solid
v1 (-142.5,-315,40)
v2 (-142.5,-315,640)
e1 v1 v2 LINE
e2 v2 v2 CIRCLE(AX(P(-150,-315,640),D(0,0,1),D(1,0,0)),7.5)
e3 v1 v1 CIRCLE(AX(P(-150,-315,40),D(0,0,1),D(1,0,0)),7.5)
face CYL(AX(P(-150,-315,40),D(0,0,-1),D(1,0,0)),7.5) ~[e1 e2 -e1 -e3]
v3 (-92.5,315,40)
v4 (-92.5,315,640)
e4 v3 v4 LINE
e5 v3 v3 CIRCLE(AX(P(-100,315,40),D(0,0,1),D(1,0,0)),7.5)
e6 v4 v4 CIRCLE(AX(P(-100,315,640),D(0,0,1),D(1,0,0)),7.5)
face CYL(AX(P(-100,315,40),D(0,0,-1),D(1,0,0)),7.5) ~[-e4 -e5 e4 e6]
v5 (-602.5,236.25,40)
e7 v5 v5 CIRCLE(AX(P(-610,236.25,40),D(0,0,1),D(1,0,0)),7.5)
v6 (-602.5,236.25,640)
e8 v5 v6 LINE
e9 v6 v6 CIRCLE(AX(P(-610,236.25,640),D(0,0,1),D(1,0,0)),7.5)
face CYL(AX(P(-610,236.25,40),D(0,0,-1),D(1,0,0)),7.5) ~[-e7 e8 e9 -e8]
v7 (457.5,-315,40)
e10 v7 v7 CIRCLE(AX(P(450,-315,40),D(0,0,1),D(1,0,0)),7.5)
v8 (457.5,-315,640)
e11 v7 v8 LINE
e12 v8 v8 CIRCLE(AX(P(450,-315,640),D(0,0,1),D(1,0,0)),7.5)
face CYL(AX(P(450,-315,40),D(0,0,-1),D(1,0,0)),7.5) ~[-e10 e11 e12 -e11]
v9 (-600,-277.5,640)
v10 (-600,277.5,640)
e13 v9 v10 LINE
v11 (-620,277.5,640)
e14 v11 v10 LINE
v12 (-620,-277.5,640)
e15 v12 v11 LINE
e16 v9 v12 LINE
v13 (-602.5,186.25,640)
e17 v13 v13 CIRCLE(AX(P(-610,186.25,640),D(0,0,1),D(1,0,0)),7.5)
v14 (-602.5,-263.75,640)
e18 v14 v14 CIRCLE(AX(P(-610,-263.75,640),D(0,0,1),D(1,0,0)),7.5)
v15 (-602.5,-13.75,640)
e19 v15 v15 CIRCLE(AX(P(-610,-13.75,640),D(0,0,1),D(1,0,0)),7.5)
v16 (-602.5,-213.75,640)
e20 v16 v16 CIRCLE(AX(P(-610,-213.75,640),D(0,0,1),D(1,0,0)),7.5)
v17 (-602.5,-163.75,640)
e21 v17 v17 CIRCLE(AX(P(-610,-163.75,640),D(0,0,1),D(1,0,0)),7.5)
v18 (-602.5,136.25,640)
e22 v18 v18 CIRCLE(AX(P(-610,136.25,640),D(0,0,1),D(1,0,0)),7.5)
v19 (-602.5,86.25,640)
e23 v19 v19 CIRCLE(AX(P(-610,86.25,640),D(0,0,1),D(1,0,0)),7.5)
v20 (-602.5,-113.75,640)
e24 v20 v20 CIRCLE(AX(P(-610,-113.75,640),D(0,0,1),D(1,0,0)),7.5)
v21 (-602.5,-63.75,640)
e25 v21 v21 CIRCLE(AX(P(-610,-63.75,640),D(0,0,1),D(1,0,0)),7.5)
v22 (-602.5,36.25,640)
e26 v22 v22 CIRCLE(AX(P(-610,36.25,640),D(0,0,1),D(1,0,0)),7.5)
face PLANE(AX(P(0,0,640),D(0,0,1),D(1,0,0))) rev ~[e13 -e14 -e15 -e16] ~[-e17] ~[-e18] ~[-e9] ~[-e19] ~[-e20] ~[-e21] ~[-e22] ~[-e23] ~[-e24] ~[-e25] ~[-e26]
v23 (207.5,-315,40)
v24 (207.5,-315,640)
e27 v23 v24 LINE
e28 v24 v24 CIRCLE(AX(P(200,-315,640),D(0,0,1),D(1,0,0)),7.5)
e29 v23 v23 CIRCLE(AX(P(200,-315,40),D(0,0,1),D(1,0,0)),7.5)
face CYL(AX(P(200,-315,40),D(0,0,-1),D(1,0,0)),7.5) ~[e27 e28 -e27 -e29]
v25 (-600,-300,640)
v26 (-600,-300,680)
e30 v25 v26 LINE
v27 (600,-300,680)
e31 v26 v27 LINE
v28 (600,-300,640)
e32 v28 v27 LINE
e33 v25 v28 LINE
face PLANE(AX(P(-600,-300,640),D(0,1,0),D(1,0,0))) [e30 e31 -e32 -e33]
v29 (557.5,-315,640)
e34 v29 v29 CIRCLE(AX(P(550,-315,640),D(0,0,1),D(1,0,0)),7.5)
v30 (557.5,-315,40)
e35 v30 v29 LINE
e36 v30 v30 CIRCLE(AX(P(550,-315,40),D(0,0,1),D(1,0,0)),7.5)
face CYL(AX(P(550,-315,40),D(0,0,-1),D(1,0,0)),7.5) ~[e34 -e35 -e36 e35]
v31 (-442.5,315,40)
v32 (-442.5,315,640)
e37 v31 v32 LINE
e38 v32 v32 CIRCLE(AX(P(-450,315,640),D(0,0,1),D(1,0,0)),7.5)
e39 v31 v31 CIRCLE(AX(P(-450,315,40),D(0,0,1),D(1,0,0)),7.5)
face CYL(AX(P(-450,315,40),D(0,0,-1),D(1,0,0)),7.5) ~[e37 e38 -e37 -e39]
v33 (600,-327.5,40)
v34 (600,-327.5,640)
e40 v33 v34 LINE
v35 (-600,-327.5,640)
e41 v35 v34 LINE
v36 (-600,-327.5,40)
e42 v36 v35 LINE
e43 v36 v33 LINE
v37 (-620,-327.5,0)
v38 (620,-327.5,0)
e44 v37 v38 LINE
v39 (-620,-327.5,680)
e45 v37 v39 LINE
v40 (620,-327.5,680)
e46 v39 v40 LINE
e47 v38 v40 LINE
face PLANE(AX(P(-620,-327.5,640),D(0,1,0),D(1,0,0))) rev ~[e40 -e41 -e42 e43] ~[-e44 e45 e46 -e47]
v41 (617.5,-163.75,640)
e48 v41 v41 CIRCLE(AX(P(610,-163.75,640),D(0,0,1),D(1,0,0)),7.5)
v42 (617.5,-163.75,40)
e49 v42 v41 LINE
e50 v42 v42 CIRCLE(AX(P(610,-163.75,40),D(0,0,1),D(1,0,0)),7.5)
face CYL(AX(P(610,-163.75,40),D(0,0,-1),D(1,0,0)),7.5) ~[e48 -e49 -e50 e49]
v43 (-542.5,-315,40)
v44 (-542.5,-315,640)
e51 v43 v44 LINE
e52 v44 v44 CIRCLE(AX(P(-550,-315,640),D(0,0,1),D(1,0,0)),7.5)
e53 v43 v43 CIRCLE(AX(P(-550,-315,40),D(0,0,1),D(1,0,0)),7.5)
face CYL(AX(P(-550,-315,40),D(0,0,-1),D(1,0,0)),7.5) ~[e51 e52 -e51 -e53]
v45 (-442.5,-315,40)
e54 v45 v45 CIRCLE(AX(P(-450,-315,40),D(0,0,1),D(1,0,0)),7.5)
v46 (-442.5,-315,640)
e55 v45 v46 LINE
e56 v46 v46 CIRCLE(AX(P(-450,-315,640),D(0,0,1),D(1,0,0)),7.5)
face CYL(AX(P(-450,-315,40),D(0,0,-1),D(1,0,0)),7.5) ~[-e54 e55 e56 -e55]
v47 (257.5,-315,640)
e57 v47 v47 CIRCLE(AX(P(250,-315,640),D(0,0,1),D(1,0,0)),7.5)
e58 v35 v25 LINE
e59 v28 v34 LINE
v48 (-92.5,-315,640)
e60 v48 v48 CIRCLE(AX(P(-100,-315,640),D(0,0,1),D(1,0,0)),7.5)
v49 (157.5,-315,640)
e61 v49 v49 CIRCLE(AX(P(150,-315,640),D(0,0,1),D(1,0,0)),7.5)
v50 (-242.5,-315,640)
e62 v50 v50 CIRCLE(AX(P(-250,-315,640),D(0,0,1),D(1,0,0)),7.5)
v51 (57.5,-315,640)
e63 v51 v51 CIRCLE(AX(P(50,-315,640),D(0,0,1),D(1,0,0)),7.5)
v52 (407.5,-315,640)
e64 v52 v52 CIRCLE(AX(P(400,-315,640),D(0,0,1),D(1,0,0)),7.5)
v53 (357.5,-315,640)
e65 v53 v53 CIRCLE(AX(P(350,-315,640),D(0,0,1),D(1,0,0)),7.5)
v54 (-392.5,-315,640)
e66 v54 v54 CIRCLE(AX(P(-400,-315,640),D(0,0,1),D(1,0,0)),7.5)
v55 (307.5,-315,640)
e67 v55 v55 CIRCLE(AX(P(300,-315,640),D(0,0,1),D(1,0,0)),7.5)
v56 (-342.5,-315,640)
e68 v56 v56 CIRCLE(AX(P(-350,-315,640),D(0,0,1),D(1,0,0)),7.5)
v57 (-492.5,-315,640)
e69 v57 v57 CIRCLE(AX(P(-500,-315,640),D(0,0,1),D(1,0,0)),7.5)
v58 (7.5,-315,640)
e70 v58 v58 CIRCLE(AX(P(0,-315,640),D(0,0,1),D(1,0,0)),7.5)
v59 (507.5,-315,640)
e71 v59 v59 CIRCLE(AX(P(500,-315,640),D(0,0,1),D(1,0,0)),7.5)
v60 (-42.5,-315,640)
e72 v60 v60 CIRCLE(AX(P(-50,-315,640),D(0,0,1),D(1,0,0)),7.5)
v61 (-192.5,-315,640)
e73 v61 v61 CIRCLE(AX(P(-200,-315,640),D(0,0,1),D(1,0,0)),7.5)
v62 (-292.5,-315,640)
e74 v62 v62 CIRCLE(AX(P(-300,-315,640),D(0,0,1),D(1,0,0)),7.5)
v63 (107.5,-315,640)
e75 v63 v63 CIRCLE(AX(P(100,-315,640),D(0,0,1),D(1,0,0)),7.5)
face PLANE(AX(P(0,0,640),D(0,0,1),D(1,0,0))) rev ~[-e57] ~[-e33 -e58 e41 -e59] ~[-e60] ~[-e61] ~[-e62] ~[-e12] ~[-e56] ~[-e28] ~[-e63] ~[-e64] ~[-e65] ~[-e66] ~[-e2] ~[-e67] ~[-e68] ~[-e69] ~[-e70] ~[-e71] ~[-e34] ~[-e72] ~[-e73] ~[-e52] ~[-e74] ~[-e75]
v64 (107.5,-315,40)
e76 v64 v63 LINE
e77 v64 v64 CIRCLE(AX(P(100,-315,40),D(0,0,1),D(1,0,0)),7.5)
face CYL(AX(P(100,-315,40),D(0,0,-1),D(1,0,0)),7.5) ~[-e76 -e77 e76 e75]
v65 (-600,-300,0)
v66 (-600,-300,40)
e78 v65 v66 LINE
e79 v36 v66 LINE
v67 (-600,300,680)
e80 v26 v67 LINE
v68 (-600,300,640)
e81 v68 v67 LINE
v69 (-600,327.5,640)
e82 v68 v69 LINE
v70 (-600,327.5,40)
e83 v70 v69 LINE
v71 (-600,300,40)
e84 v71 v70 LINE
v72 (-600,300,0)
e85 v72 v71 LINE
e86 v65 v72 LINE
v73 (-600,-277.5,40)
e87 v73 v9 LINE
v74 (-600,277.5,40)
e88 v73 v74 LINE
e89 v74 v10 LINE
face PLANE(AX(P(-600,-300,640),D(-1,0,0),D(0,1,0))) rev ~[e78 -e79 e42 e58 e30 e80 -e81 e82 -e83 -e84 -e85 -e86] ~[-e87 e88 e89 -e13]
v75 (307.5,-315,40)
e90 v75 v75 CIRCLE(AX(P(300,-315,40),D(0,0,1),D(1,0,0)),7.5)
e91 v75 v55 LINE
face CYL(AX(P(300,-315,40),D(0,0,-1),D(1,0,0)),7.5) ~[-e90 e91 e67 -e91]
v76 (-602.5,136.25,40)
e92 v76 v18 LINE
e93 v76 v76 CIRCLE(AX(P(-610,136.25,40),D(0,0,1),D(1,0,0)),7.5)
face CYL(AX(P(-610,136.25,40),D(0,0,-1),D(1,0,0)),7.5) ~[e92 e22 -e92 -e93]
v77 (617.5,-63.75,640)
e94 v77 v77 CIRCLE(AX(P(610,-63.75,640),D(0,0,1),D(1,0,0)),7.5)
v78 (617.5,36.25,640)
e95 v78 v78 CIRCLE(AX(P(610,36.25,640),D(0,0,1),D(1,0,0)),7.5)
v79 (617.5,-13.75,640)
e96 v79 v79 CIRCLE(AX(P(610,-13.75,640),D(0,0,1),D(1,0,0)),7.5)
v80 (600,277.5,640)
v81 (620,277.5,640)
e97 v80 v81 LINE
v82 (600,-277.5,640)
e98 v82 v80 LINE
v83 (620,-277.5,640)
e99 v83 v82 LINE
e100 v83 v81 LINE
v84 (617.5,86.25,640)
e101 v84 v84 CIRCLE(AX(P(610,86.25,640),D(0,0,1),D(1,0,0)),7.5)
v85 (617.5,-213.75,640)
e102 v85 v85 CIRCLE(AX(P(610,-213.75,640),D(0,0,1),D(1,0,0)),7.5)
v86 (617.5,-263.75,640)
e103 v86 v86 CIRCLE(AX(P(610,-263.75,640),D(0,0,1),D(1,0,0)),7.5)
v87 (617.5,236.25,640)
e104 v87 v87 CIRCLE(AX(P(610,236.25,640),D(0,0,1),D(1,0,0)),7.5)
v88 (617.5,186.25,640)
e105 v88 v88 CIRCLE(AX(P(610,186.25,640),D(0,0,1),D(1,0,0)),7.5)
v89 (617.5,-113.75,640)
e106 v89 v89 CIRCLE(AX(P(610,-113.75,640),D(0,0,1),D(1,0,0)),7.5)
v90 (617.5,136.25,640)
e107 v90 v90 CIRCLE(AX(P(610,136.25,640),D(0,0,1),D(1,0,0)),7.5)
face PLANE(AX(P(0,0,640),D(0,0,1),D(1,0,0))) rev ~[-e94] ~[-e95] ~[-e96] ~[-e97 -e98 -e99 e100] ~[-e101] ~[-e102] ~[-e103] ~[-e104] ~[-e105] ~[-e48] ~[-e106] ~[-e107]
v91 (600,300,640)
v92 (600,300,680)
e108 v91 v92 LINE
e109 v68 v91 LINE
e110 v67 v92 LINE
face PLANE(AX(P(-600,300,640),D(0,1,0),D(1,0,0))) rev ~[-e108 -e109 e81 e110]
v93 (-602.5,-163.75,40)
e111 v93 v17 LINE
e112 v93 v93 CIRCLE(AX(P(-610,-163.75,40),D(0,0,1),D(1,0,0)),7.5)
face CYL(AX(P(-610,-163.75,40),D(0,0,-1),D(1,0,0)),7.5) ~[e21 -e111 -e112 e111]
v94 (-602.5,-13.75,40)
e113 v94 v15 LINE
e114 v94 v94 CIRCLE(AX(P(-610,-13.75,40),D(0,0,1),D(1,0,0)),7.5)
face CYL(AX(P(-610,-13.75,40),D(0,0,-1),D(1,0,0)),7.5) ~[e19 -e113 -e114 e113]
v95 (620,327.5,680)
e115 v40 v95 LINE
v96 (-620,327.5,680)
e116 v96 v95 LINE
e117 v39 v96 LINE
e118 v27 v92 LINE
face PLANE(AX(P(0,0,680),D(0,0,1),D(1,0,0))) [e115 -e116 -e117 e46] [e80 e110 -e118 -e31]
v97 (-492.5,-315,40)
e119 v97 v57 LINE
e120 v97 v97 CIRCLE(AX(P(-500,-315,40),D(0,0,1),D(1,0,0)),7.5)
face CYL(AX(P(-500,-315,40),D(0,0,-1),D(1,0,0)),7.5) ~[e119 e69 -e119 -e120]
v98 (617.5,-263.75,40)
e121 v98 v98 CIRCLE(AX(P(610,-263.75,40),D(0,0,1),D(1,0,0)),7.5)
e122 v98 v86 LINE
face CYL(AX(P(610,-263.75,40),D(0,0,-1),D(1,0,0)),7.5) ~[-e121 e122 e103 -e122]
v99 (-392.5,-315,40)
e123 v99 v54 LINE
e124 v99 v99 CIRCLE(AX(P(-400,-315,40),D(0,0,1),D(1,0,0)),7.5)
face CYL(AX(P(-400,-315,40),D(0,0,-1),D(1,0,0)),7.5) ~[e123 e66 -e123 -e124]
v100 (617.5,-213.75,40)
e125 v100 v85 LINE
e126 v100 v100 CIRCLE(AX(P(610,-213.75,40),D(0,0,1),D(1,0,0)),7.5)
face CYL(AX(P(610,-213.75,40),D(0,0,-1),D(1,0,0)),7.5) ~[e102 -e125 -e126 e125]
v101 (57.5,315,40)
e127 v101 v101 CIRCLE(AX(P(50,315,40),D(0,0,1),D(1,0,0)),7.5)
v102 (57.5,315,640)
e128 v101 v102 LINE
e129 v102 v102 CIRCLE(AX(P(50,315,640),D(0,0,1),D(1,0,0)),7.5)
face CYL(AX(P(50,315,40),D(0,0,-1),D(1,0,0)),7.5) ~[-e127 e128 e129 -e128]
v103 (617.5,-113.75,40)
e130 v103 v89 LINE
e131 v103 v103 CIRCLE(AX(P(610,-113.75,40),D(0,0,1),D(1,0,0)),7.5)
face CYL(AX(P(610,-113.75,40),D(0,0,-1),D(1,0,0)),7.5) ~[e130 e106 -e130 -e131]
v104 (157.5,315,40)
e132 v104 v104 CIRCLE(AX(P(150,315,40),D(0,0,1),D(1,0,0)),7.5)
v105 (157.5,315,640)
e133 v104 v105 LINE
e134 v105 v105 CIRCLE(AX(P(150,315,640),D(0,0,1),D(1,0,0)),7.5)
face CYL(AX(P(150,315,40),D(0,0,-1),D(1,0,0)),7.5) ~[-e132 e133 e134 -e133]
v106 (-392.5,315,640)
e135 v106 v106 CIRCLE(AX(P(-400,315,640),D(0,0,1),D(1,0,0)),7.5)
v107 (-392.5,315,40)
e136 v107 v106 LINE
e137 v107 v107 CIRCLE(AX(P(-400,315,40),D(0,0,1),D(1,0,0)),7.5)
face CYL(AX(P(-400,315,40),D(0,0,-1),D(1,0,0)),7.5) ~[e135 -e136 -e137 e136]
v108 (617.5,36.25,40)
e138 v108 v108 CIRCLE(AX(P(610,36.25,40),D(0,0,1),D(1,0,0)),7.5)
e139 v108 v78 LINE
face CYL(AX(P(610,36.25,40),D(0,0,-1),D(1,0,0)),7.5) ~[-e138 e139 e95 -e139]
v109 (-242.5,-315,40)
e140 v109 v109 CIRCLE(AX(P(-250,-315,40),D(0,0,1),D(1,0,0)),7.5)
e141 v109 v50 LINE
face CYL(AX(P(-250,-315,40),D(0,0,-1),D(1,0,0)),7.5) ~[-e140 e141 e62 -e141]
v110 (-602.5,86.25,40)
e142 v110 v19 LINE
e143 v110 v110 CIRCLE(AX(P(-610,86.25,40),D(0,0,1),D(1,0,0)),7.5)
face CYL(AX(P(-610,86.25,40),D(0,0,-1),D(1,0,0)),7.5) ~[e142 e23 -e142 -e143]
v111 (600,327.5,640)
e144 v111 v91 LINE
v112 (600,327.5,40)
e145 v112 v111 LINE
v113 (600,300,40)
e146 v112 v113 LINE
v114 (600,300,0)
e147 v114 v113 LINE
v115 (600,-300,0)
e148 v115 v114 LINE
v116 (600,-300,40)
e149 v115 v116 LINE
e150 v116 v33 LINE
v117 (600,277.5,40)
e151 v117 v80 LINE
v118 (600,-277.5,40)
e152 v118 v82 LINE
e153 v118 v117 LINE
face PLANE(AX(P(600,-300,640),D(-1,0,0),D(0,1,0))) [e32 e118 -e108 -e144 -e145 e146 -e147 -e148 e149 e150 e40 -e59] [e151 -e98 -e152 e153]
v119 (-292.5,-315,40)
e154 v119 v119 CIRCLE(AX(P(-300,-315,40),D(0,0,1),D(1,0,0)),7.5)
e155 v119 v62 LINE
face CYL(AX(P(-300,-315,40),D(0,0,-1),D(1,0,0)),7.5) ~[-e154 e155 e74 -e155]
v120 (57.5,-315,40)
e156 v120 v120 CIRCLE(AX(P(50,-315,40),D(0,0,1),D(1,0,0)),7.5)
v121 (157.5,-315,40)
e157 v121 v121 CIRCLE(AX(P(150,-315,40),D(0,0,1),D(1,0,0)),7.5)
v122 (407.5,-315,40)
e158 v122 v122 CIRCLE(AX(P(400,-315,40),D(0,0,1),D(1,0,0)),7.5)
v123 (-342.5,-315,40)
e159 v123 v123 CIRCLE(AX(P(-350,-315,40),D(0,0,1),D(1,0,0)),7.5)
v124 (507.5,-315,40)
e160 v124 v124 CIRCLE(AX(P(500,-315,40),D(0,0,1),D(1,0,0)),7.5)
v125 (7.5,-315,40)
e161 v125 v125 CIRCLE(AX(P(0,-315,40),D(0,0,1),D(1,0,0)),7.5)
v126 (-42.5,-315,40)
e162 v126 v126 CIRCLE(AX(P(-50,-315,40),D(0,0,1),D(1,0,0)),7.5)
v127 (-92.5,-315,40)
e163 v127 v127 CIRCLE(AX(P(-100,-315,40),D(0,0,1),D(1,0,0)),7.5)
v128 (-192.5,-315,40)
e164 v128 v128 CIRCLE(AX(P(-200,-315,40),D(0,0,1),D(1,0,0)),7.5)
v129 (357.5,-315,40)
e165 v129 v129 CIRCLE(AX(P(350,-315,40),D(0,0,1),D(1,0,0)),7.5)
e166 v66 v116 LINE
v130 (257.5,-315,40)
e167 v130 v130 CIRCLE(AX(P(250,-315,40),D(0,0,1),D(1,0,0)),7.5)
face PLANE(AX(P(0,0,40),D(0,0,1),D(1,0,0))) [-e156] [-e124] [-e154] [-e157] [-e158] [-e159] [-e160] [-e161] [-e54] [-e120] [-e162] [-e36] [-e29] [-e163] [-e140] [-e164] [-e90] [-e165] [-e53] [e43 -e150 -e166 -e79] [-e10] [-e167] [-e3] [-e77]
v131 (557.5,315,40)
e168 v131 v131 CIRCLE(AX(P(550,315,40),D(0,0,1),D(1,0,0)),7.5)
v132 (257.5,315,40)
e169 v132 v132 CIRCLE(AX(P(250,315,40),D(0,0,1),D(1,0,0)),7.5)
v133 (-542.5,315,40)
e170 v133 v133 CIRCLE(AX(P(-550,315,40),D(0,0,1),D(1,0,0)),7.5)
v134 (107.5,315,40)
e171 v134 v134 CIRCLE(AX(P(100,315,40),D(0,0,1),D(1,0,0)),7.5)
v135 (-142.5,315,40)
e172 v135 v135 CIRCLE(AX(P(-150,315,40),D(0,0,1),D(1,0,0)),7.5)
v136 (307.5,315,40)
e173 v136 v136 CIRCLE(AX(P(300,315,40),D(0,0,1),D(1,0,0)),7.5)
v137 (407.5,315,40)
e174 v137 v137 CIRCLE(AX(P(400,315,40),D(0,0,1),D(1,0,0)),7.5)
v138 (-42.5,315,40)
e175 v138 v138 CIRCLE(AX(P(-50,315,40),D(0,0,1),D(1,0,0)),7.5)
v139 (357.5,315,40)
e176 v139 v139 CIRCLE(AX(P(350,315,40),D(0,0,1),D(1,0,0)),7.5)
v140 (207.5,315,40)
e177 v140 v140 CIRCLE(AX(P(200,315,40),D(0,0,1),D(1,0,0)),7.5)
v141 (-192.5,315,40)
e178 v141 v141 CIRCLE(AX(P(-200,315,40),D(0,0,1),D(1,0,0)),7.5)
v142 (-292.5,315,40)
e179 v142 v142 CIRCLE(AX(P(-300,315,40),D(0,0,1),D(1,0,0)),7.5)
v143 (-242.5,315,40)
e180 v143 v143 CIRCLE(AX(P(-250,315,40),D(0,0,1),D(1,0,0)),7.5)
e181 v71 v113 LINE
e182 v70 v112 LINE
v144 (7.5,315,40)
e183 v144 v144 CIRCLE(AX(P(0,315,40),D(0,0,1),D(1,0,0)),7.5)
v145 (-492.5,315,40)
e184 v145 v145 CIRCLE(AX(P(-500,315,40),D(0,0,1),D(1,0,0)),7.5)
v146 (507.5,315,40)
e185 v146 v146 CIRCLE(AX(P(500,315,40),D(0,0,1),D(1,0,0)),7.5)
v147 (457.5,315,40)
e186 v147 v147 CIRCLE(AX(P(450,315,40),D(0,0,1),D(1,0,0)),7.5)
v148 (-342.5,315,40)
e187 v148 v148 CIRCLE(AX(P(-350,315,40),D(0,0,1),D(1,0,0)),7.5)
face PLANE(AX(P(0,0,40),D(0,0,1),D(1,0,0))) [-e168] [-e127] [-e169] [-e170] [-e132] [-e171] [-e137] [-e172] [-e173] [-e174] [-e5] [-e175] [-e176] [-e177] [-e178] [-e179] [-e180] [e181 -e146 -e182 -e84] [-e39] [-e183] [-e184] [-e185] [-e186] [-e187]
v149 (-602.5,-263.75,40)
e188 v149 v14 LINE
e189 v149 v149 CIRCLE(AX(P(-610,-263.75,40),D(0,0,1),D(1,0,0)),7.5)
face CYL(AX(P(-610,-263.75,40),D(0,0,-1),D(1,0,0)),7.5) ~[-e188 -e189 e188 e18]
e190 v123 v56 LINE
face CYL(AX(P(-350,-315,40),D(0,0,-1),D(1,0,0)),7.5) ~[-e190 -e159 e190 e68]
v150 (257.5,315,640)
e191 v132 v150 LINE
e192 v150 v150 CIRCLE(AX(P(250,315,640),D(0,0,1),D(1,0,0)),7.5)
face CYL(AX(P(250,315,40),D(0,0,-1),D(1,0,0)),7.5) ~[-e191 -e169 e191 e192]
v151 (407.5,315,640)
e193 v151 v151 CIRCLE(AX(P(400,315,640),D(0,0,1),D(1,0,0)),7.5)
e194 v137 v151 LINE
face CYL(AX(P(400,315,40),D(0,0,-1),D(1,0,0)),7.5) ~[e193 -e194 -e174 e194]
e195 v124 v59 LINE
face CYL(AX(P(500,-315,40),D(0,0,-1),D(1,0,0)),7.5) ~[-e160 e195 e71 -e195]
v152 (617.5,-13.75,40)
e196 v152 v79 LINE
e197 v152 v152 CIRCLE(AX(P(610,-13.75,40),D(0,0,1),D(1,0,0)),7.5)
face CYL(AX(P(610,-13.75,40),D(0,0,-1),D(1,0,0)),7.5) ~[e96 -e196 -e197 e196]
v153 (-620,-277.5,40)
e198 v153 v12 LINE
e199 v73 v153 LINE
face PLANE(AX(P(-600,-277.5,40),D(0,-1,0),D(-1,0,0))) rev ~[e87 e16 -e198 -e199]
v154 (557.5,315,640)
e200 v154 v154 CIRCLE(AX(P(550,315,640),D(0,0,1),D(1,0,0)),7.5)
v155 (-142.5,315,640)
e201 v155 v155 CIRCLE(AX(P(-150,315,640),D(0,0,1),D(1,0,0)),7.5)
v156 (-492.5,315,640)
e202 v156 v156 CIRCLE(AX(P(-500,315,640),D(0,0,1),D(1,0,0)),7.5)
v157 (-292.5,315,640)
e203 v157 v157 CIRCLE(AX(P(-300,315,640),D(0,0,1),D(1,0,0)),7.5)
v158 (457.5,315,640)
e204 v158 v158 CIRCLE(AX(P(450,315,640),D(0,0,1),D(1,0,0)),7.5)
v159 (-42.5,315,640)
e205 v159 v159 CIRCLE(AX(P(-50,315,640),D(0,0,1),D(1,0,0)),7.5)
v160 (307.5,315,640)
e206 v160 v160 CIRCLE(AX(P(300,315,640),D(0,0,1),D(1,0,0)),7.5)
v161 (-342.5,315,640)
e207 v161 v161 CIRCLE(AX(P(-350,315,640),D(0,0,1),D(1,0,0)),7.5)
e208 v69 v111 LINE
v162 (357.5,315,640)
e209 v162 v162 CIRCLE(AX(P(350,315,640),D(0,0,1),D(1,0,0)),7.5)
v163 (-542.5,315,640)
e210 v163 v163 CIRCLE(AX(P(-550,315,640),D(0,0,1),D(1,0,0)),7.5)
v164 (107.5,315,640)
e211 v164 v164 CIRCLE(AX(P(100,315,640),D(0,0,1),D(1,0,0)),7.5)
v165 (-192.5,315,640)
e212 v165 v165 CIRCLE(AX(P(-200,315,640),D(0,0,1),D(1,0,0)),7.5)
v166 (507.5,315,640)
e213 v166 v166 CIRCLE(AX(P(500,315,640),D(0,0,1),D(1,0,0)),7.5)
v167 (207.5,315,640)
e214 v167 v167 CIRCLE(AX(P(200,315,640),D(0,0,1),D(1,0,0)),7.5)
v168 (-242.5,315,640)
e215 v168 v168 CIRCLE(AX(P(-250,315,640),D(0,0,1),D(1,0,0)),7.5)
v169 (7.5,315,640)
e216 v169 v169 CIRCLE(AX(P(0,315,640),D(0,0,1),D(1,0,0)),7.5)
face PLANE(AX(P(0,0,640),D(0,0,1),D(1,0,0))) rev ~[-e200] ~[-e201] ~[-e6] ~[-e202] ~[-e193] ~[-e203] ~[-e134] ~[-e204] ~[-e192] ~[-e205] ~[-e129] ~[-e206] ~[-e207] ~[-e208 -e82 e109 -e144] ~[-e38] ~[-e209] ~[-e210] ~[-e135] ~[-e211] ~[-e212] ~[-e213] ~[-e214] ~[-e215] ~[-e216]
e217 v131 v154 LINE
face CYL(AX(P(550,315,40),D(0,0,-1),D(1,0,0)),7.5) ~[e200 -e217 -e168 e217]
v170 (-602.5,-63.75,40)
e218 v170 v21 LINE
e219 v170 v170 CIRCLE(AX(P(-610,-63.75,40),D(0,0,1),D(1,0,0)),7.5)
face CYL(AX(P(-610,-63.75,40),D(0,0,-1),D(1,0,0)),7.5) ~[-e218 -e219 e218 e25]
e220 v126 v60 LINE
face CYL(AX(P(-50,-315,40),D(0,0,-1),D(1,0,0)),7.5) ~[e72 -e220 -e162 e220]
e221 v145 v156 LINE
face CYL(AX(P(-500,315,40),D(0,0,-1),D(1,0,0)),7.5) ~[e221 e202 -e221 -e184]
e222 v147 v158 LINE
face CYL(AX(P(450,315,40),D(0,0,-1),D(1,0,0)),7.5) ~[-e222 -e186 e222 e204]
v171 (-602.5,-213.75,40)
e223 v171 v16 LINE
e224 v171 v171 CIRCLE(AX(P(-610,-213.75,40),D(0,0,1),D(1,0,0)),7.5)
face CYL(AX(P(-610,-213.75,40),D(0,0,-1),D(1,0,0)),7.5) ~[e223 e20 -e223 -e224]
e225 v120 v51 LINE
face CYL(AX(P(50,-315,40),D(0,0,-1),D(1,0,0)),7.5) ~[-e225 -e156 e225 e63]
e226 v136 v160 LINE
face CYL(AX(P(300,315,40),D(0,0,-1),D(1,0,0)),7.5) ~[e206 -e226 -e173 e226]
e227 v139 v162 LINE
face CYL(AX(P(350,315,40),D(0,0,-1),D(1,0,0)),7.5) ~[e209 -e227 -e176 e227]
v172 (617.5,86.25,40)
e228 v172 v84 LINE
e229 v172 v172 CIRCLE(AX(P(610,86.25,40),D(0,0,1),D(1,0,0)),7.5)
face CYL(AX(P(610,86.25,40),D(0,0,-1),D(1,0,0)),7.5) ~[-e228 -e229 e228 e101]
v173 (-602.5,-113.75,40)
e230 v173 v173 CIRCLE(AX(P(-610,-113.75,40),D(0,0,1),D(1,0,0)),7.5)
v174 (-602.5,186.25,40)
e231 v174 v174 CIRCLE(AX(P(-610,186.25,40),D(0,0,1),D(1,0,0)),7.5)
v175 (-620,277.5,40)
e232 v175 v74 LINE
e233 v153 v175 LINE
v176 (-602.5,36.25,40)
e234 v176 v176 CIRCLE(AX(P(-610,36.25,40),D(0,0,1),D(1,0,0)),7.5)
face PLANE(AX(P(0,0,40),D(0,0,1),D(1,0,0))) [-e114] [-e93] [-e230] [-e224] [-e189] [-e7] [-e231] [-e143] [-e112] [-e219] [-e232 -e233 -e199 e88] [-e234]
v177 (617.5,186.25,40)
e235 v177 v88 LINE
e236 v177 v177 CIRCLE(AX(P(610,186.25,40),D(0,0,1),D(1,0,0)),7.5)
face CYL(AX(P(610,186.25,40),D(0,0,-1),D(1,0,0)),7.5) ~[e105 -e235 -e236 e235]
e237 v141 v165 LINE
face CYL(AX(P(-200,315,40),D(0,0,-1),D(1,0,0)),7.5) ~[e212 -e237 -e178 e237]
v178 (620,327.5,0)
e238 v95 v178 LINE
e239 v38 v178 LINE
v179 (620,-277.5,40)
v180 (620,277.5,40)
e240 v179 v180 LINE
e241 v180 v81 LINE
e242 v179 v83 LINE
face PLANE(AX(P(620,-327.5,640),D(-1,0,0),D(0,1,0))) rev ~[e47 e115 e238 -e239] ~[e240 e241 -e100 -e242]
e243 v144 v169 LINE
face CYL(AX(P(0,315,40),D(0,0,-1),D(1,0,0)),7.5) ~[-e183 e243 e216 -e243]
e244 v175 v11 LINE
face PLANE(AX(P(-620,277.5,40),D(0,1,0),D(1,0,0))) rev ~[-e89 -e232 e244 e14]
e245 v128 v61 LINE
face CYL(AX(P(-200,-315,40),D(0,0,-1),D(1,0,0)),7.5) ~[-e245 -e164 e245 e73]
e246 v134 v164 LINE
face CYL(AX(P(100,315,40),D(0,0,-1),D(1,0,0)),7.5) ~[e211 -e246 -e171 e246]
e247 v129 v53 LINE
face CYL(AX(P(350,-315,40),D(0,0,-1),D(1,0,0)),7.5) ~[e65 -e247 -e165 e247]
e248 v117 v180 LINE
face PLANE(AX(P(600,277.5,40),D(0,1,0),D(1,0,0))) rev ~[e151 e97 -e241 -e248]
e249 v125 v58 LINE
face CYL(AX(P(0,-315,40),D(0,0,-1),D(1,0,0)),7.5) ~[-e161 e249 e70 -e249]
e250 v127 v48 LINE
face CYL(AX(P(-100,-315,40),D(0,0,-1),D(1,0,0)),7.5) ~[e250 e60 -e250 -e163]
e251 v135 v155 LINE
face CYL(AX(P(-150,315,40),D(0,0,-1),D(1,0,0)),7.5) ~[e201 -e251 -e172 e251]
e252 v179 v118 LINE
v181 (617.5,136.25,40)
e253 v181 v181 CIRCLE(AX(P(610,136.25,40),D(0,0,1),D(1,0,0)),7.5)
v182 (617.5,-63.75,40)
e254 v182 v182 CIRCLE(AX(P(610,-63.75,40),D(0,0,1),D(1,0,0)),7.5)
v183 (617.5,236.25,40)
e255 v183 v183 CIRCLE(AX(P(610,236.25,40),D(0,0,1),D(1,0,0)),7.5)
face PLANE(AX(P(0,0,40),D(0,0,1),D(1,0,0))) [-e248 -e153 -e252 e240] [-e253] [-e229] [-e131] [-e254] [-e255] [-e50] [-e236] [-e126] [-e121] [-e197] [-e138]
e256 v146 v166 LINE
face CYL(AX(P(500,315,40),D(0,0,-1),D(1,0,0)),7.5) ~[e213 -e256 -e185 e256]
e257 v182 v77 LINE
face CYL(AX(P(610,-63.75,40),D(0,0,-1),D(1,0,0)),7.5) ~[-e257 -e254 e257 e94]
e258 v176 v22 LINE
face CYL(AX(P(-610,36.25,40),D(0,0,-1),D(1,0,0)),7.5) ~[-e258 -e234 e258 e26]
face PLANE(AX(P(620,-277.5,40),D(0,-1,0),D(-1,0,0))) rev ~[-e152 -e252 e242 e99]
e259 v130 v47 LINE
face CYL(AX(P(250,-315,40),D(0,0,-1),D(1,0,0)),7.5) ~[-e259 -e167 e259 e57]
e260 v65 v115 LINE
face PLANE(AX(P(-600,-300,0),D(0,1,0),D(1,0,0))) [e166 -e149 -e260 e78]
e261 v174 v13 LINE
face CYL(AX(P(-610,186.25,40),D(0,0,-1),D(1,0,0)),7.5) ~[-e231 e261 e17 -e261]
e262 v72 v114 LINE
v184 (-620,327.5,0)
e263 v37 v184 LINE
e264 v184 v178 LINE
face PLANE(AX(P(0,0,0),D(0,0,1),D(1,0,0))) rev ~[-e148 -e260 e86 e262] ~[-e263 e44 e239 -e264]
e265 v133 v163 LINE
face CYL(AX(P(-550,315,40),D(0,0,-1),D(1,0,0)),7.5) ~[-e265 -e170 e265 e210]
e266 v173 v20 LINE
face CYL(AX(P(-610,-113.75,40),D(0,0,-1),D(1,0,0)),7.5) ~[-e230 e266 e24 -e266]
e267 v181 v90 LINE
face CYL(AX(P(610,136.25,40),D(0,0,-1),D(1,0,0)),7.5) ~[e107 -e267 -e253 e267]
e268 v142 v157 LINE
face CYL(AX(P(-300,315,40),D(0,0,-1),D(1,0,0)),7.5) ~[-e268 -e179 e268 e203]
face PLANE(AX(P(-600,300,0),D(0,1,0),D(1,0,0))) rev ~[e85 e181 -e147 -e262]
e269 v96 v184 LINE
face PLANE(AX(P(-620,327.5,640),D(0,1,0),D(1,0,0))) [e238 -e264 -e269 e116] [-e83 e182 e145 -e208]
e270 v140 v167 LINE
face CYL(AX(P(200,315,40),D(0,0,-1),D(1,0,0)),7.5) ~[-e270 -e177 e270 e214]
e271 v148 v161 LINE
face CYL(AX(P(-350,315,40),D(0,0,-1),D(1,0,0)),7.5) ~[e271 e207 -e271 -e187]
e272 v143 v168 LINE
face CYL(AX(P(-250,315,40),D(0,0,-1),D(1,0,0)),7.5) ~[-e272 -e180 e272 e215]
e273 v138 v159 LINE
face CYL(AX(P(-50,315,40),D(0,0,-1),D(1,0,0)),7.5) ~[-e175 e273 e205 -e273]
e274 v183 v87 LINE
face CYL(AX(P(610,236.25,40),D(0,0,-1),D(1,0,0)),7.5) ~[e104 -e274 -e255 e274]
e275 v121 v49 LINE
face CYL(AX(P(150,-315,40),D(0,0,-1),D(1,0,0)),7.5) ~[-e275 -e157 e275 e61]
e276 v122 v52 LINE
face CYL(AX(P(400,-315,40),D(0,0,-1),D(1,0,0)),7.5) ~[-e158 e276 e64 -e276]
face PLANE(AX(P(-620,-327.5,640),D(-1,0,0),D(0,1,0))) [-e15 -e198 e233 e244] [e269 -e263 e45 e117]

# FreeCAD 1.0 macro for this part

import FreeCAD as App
import Part
import Sketcher
Q = App.Units.Quantity


def add_polygon(sketch, points):
    """Adds a closed chain of lines whose ends are joined by coincident constraints."""
    first, n = sketch.GeometryCount, len(points)
    for a, b in zip(points, points[1:] + points[:1]):
        sketch.addGeometry(Part.LineSegment(App.Vector(*a, 0), App.Vector(*b, 0)), False)
    for i in range(n):
        sketch.addConstraint(Sketcher.Constraint("Coincident", first + i, 2, first + (i + 1) % n, 1))

doc = App.newDocument("Part")
params = doc.addObject("Spreadsheet::Sheet", "Params")
for row, (alias, value) in enumerate([
    ("sketch1_width", "1240 mm"),
    ("sketch1_width2", "1200 mm"),
    ("sketch1_height", "655 mm"),
    ("sketch1_height2", "600 mm"),
    ("pad1_length", "40 mm"),
    ("sketch2_width", "20 mm"),
    ("sketch2_height", "50 mm"),
    ("pad2_length", "600 mm"),
    ("sketch3_diameter", "15 mm"),
    ("pad3_length", "600 mm"),
    ("sketch4_width", "1240 mm"),
    ("sketch4_width2", "1200 mm"),
    ("sketch4_height", "655 mm"),
    ("sketch4_height2", "600 mm"),
    ("pad4_length", "40 mm"),
], start=1):
    params.set(f"A{row}", alias)
    params.set(f"B{row}", "=" + value)
    params.setAlias(f"B{row}", alias)

body = doc.addObject("PartDesign::Body", "Body")

sketch1 = body.newObject("Sketcher::SketchObject", "Sketch")
sketch1.AttachmentSupport = (doc.getObject("XY_Plane"), [""])
sketch1.MapMode = "FlatFace"
add_polygon(sketch1, [(-620, 328), (-620, -328), (620, -328), (620, 328)])
add_polygon(sketch1, [(600, -300), (-600, -300), (-600, 300), (600, 300)])
sketch1.addConstraint(Sketcher.Constraint("Vertical", 0))
sketch1.addConstraint(Sketcher.Constraint("Horizontal", 1))
sketch1.addConstraint(Sketcher.Constraint("Vertical", 2))
sketch1.addConstraint(Sketcher.Constraint("Horizontal", 3))
sketch1.addConstraint(Sketcher.Constraint("Horizontal", 4))
sketch1.addConstraint(Sketcher.Constraint("Vertical", 5))
sketch1.addConstraint(Sketcher.Constraint("Horizontal", 6))
sketch1.addConstraint(Sketcher.Constraint("Vertical", 7))
sketch1.addConstraint(Sketcher.Constraint("Symmetric", 0, 2, 2, 2, -1, 1))
sketch1.addConstraint(Sketcher.Constraint("Symmetric", 4, 2, 6, 2, -1, 1))
sketch1.addConstraint(Sketcher.Constraint("DistanceX", 1, 1, 1, 2, Q("1240 mm")))
sketch1.addConstraint(Sketcher.Constraint("DistanceX", 4, 2, 4, 1, Q("1200 mm")))
sketch1.addConstraint(Sketcher.Constraint("DistanceY", 0, 2, 0, 1, Q("655 mm")))
sketch1.addConstraint(Sketcher.Constraint("DistanceY", 5, 1, 5, 2, Q("600 mm")))
sketch1.setExpression("Constraints[18]", "Params.sketch1_width")
sketch1.setExpression("Constraints[19]", "Params.sketch1_width2")
sketch1.setExpression("Constraints[20]", "Params.sketch1_height")
sketch1.setExpression("Constraints[21]", "Params.sketch1_height2")
pad1 = body.newObject("PartDesign::Pad", "Pad")
pad1.Profile = sketch1
pad1.setExpression("Length", "Params.pad1_length")

sketch2 = body.newObject("Sketcher::SketchObject", "Sketch001")
sketch2.AttachmentSupport = (doc.getObject("XY_Plane"), [""])
sketch2.MapMode = "FlatFace"
sketch2.AttachmentOffset = App.Placement(App.Vector(0, 0, 40), App.Rotation())
add_polygon(sketch2, [(-600, 328), (-620, 328), (-620, 278), (-600, 278)])
add_polygon(sketch2, [(-600, -278), (-620, -278), (-620, -328), (-600, -328)])
add_polygon(sketch2, [(620, 328), (600, 328), (600, 278), (620, 278)])
add_polygon(sketch2, [(620, -278), (600, -278), (600, -328), (620, -328)])
sketch2.addConstraint(Sketcher.Constraint("Horizontal", 0))
sketch2.addConstraint(Sketcher.Constraint("Vertical", 1))
sketch2.addConstraint(Sketcher.Constraint("Horizontal", 2))
sketch2.addConstraint(Sketcher.Constraint("Vertical", 3))
sketch2.addConstraint(Sketcher.Constraint("Horizontal", 4))
sketch2.addConstraint(Sketcher.Constraint("Vertical", 5))
sketch2.addConstraint(Sketcher.Constraint("Horizontal", 6))
sketch2.addConstraint(Sketcher.Constraint("Vertical", 7))
sketch2.addConstraint(Sketcher.Constraint("Horizontal", 8))
sketch2.addConstraint(Sketcher.Constraint("Vertical", 9))
sketch2.addConstraint(Sketcher.Constraint("Horizontal", 10))
sketch2.addConstraint(Sketcher.Constraint("Vertical", 11))
sketch2.addConstraint(Sketcher.Constraint("Horizontal", 12))
sketch2.addConstraint(Sketcher.Constraint("Vertical", 13))
sketch2.addConstraint(Sketcher.Constraint("Horizontal", 14))
sketch2.addConstraint(Sketcher.Constraint("Vertical", 15))
sketch2.addConstraint(Sketcher.Constraint("Symmetric", 6, 2, 8, 2, -1, 1))
sketch2.addConstraint(Sketcher.Constraint("Symmetric", 4, 2, 10, 2, -1, 1))
sketch2.addConstraint(Sketcher.Constraint("Symmetric", 2, 2, 12, 2, -1, 1))
sketch2.addConstraint(Sketcher.Constraint("Symmetric", 0, 2, 14, 2, -1, 1))
sketch2.addConstraint(Sketcher.Constraint("Symmetric", 3, 2, 8, 2, -2))
sketch2.addConstraint(Sketcher.Constraint("Symmetric", 1, 2, 10, 2, -2))
sketch2.addConstraint(Sketcher.Constraint("DistanceX", 0, 2, 0, 1, Q("20 mm")))
sketch2.addConstraint(Sketcher.Constraint("DistanceY", 1, 2, 1, 1, Q("50 mm")))
sketch2.addConstraint(Sketcher.Constraint("DistanceX", 0, 2, -1, 1, Q("620 mm")))
sketch2.addConstraint(Sketcher.Constraint("DistanceY", 4, 2, 1, 2, Q("555 mm")))
sketch2.setExpression("Constraints[38]", "Params.sketch2_width")
sketch2.setExpression("Constraints[39]", "Params.sketch2_height")
pad2 = body.newObject("PartDesign::Pad", "Pad001")
pad2.Profile = sketch2
pad2.setExpression("Length", "Params.pad2_length")

sketch3 = body.newObject("Sketcher::SketchObject", "Sketch002")
sketch3.AttachmentSupport = (doc.getObject("XY_Plane"), [""])
sketch3.MapMode = "FlatFace"
sketch3.AttachmentOffset = App.Placement(App.Vector(0, 0, 40), App.Rotation())
sketch3.addGeometry(Part.Circle(App.Vector(-550, -315, 0), App.Vector(0, 0, 1), 8), False)
sketch3.addGeometry(Part.Circle(App.Vector(-500, -315, 0), App.Vector(0, 0, 1), 8), False)
sketch3.addGeometry(Part.Circle(App.Vector(-450, -315, 0), App.Vector(0, 0, 1), 8), False)
sketch3.addGeometry(Part.Circle(App.Vector(-400, -315, 0), App.Vector(0, 0, 1), 8), False)
sketch3.addGeometry(Part.Circle(App.Vector(-350, -315, 0), App.Vector(0, 0, 1), 8), False)
sketch3.addGeometry(Part.Circle(App.Vector(-300, -315, 0), App.Vector(0, 0, 1), 8), False)
sketch3.addGeometry(Part.Circle(App.Vector(-250, -315, 0), App.Vector(0, 0, 1), 8), False)
sketch3.addGeometry(Part.Circle(App.Vector(-200, -315, 0), App.Vector(0, 0, 1), 8), False)
sketch3.addGeometry(Part.Circle(App.Vector(-150, -315, 0), App.Vector(0, 0, 1), 8), False)
sketch3.addGeometry(Part.Circle(App.Vector(-100, -315, 0), App.Vector(0, 0, 1), 8), False)
sketch3.addGeometry(Part.Circle(App.Vector(-50, -315, 0), App.Vector(0, 0, 1), 8), False)
sketch3.addGeometry(Part.Circle(App.Vector(0, -315, 0), App.Vector(0, 0, 1), 8), False)
sketch3.addGeometry(Part.Circle(App.Vector(50, -315, 0), App.Vector(0, 0, 1), 8), False)
sketch3.addGeometry(Part.Circle(App.Vector(100, -315, 0), App.Vector(0, 0, 1), 8), False)
sketch3.addGeometry(Part.Circle(App.Vector(150, -315, 0), App.Vector(0, 0, 1), 8), False)
sketch3.addGeometry(Part.Circle(App.Vector(200, -315, 0), App.Vector(0, 0, 1), 8), False)
sketch3.addGeometry(Part.Circle(App.Vector(250, -315, 0), App.Vector(0, 0, 1), 8), False)
sketch3.addGeometry(Part.Circle(App.Vector(300, -315, 0), App.Vector(0, 0, 1), 8), False)
sketch3.addGeometry(Part.Circle(App.Vector(350, -315, 0), App.Vector(0, 0, 1), 8), False)
sketch3.addGeometry(Part.Circle(App.Vector(400, -315, 0), App.Vector(0, 0, 1), 8), False)
sketch3.addGeometry(Part.Circle(App.Vector(450, -315, 0), App.Vector(0, 0, 1), 8), False)
sketch3.addGeometry(Part.Circle(App.Vector(500, -315, 0), App.Vector(0, 0, 1), 8), False)
sketch3.addGeometry(Part.Circle(App.Vector(550, -315, 0), App.Vector(0, 0, 1), 8), False)
sketch3.addGeometry(Part.Circle(App.Vector(-500, 315, 0), App.Vector(0, 0, 1), 8), False)
sketch3.addGeometry(Part.Circle(App.Vector(-550, 315, 0), App.Vector(0, 0, 1), 8), False)
sketch3.addGeometry(Part.Circle(App.Vector(150, 315, 0), App.Vector(0, 0, 1), 8), False)
sketch3.addGeometry(Part.Circle(App.Vector(0, 315, 0), App.Vector(0, 0, 1), 8), False)
sketch3.addGeometry(Part.Circle(App.Vector(250, 315, 0), App.Vector(0, 0, 1), 8), False)
sketch3.addGeometry(Part.Circle(App.Vector(-400, 315, 0), App.Vector(0, 0, 1), 8), False)
sketch3.addGeometry(Part.Circle(App.Vector(450, 315, 0), App.Vector(0, 0, 1), 8), False)
sketch3.addGeometry(Part.Circle(App.Vector(100, 315, 0), App.Vector(0, 0, 1), 8), False)
sketch3.addGeometry(Part.Circle(App.Vector(500, 315, 0), App.Vector(0, 0, 1), 8), False)
sketch3.addGeometry(Part.Circle(App.Vector(-100, 315, 0), App.Vector(0, 0, 1), 8), False)
sketch3.addGeometry(Part.Circle(App.Vector(-450, 315, 0), App.Vector(0, 0, 1), 8), False)
sketch3.addGeometry(Part.Circle(App.Vector(400, 315, 0), App.Vector(0, 0, 1), 8), False)
sketch3.addGeometry(Part.Circle(App.Vector(50, 315, 0), App.Vector(0, 0, 1), 8), False)
sketch3.addGeometry(Part.Circle(App.Vector(-300, 315, 0), App.Vector(0, 0, 1), 8), False)
sketch3.addGeometry(Part.Circle(App.Vector(-50, 315, 0), App.Vector(0, 0, 1), 8), False)
sketch3.addGeometry(Part.Circle(App.Vector(550, 315, 0), App.Vector(0, 0, 1), 8), False)
sketch3.addGeometry(Part.Circle(App.Vector(300, 315, 0), App.Vector(0, 0, 1), 8), False)
sketch3.addGeometry(Part.Circle(App.Vector(-200, 315, 0), App.Vector(0, 0, 1), 8), False)
sketch3.addGeometry(Part.Circle(App.Vector(200, 315, 0), App.Vector(0, 0, 1), 8), False)
sketch3.addGeometry(Part.Circle(App.Vector(350, 315, 0), App.Vector(0, 0, 1), 8), False)
sketch3.addGeometry(Part.Circle(App.Vector(-250, 315, 0), App.Vector(0, 0, 1), 8), False)
sketch3.addGeometry(Part.Circle(App.Vector(-150, 315, 0), App.Vector(0, 0, 1), 8), False)
sketch3.addGeometry(Part.Circle(App.Vector(-350, 315, 0), App.Vector(0, 0, 1), 8), False)
sketch3.addGeometry(Part.Circle(App.Vector(-610, -264, 0), App.Vector(0, 0, 1), 8), False)
sketch3.addGeometry(Part.Circle(App.Vector(-610, -214, 0), App.Vector(0, 0, 1), 8), False)
sketch3.addGeometry(Part.Circle(App.Vector(-610, -164, 0), App.Vector(0, 0, 1), 8), False)
sketch3.addGeometry(Part.Circle(App.Vector(-610, -114, 0), App.Vector(0, 0, 1), 8), False)
sketch3.addGeometry(Part.Circle(App.Vector(-610, -64, 0), App.Vector(0, 0, 1), 8), False)
sketch3.addGeometry(Part.Circle(App.Vector(-610, -14, 0), App.Vector(0, 0, 1), 8), False)
sketch3.addGeometry(Part.Circle(App.Vector(-610, 36, 0), App.Vector(0, 0, 1), 8), False)
sketch3.addGeometry(Part.Circle(App.Vector(-610, 86, 0), App.Vector(0, 0, 1), 8), False)
sketch3.addGeometry(Part.Circle(App.Vector(-610, 136, 0), App.Vector(0, 0, 1), 8), False)
sketch3.addGeometry(Part.Circle(App.Vector(-610, 186, 0), App.Vector(0, 0, 1), 8), False)
sketch3.addGeometry(Part.Circle(App.Vector(-610, 236, 0), App.Vector(0, 0, 1), 8), False)
sketch3.addGeometry(Part.Circle(App.Vector(610, -264, 0), App.Vector(0, 0, 1), 8), False)
sketch3.addGeometry(Part.Circle(App.Vector(610, -214, 0), App.Vector(0, 0, 1), 8), False)
sketch3.addGeometry(Part.Circle(App.Vector(610, 136, 0), App.Vector(0, 0, 1), 8), False)
sketch3.addGeometry(Part.Circle(App.Vector(610, 236, 0), App.Vector(0, 0, 1), 8), False)
sketch3.addGeometry(Part.Circle(App.Vector(610, -114, 0), App.Vector(0, 0, 1), 8), False)
sketch3.addGeometry(Part.Circle(App.Vector(610, 86, 0), App.Vector(0, 0, 1), 8), False)
sketch3.addGeometry(Part.Circle(App.Vector(610, 186, 0), App.Vector(0, 0, 1), 8), False)
sketch3.addGeometry(Part.Circle(App.Vector(610, 36, 0), App.Vector(0, 0, 1), 8), False)
sketch3.addGeometry(Part.Circle(App.Vector(610, -14, 0), App.Vector(0, 0, 1), 8), False)
sketch3.addGeometry(Part.Circle(App.Vector(610, -64, 0), App.Vector(0, 0, 1), 8), False)
sketch3.addGeometry(Part.Circle(App.Vector(610, -164, 0), App.Vector(0, 0, 1), 8), False)
sketch3.addConstraint(Sketcher.Constraint("Equal", 0, 1))
sketch3.addConstraint(Sketcher.Constraint("Equal", 1, 2))
sketch3.addConstraint(Sketcher.Constraint("Equal", 2, 3))
sketch3.addConstraint(Sketcher.Constraint("Equal", 3, 4))
sketch3.addConstraint(Sketcher.Constraint("Equal", 4, 5))
sketch3.addConstraint(Sketcher.Constraint("Equal", 5, 6))
sketch3.addConstraint(Sketcher.Constraint("Equal", 6, 7))
sketch3.addConstraint(Sketcher.Constraint("Equal", 7, 8))
sketch3.addConstraint(Sketcher.Constraint("Equal", 8, 9))
sketch3.addConstraint(Sketcher.Constraint("Equal", 9, 10))
sketch3.addConstraint(Sketcher.Constraint("Equal", 10, 11))
sketch3.addConstraint(Sketcher.Constraint("Equal", 11, 12))
sketch3.addConstraint(Sketcher.Constraint("Equal", 12, 13))
sketch3.addConstraint(Sketcher.Constraint("Equal", 13, 14))
sketch3.addConstraint(Sketcher.Constraint("Equal", 14, 15))
sketch3.addConstraint(Sketcher.Constraint("Equal", 15, 16))
sketch3.addConstraint(Sketcher.Constraint("Equal", 16, 17))
sketch3.addConstraint(Sketcher.Constraint("Equal", 17, 18))
sketch3.addConstraint(Sketcher.Constraint("Equal", 18, 19))
sketch3.addConstraint(Sketcher.Constraint("Equal", 19, 20))
sketch3.addConstraint(Sketcher.Constraint("Equal", 20, 21))
sketch3.addConstraint(Sketcher.Constraint("Equal", 21, 22))
sketch3.addConstraint(Sketcher.Constraint("Equal", 22, 23))
sketch3.addConstraint(Sketcher.Constraint("Equal", 23, 24))
sketch3.addConstraint(Sketcher.Constraint("Equal", 24, 25))
sketch3.addConstraint(Sketcher.Constraint("Equal", 25, 26))
sketch3.addConstraint(Sketcher.Constraint("Equal", 26, 27))
sketch3.addConstraint(Sketcher.Constraint("Equal", 27, 28))
sketch3.addConstraint(Sketcher.Constraint("Equal", 28, 29))
sketch3.addConstraint(Sketcher.Constraint("Equal", 29, 30))
sketch3.addConstraint(Sketcher.Constraint("Equal", 30, 31))
sketch3.addConstraint(Sketcher.Constraint("Equal", 31, 32))
sketch3.addConstraint(Sketcher.Constraint("Equal", 32, 33))
sketch3.addConstraint(Sketcher.Constraint("Equal", 33, 34))
sketch3.addConstraint(Sketcher.Constraint("Equal", 34, 35))
sketch3.addConstraint(Sketcher.Constraint("Equal", 35, 36))
sketch3.addConstraint(Sketcher.Constraint("Equal", 36, 37))
sketch3.addConstraint(Sketcher.Constraint("Equal", 37, 38))
sketch3.addConstraint(Sketcher.Constraint("Equal", 38, 39))
sketch3.addConstraint(Sketcher.Constraint("Equal", 39, 40))
sketch3.addConstraint(Sketcher.Constraint("Equal", 40, 41))
sketch3.addConstraint(Sketcher.Constraint("Equal", 41, 42))
sketch3.addConstraint(Sketcher.Constraint("Equal", 42, 43))
sketch3.addConstraint(Sketcher.Constraint("Equal", 43, 44))
sketch3.addConstraint(Sketcher.Constraint("Equal", 44, 45))
sketch3.addConstraint(Sketcher.Constraint("Equal", 45, 46))
sketch3.addConstraint(Sketcher.Constraint("Equal", 46, 47))
sketch3.addConstraint(Sketcher.Constraint("Equal", 47, 48))
sketch3.addConstraint(Sketcher.Constraint("Equal", 48, 49))
sketch3.addConstraint(Sketcher.Constraint("Equal", 49, 50))
sketch3.addConstraint(Sketcher.Constraint("Equal", 50, 51))
sketch3.addConstraint(Sketcher.Constraint("Equal", 51, 52))
sketch3.addConstraint(Sketcher.Constraint("Equal", 52, 53))
sketch3.addConstraint(Sketcher.Constraint("Equal", 53, 54))
sketch3.addConstraint(Sketcher.Constraint("Equal", 54, 55))
sketch3.addConstraint(Sketcher.Constraint("Equal", 55, 56))
sketch3.addConstraint(Sketcher.Constraint("Equal", 56, 57))
sketch3.addConstraint(Sketcher.Constraint("Equal", 57, 58))
sketch3.addConstraint(Sketcher.Constraint("Equal", 58, 59))
sketch3.addConstraint(Sketcher.Constraint("Equal", 59, 60))
sketch3.addConstraint(Sketcher.Constraint("Equal", 60, 61))
sketch3.addConstraint(Sketcher.Constraint("Equal", 61, 62))
sketch3.addConstraint(Sketcher.Constraint("Equal", 62, 63))
sketch3.addConstraint(Sketcher.Constraint("Equal", 63, 64))
sketch3.addConstraint(Sketcher.Constraint("Equal", 64, 65))
sketch3.addConstraint(Sketcher.Constraint("Equal", 65, 66))
sketch3.addConstraint(Sketcher.Constraint("Equal", 66, 67))
sketch3.addConstraint(Sketcher.Constraint("Symmetric", 21, 3, 23, 3, -1, 1))
sketch3.addConstraint(Sketcher.Constraint("Symmetric", 22, 3, 24, 3, -1, 1))
sketch3.addConstraint(Sketcher.Constraint("Symmetric", 8, 3, 25, 3, -1, 1))
sketch3.addConstraint(Sketcher.Constraint("Symmetric", 11, 3, 26, 3, -1, 1))
sketch3.addConstraint(Sketcher.Constraint("Symmetric", 6, 3, 27, 3, -1, 1))
sketch3.addConstraint(Sketcher.Constraint("Symmetric", 19, 3, 28, 3, -1, 1))
sketch3.addConstraint(Sketcher.Constraint("Symmetric", 2, 3, 29, 3, -1, 1))
sketch3.addConstraint(Sketcher.Constraint("Symmetric", 9, 3, 30, 3, -1, 1))
sketch3.addConstraint(Sketcher.Constraint("Symmetric", 1, 3, 31, 3, -1, 1))
sketch3.addConstraint(Sketcher.Constraint("Symmetric", 13, 3, 32, 3, -1, 1))
sketch3.addConstraint(Sketcher.Constraint("Symmetric", 20, 3, 33, 3, -1, 1))
sketch3.addConstraint(Sketcher.Constraint("Symmetric", 3, 3, 34, 3, -1, 1))
sketch3.addConstraint(Sketcher.Constraint("Symmetric", 10, 3, 35, 3, -1, 1))
sketch3.addConstraint(Sketcher.Constraint("Symmetric", 17, 3, 36, 3, -1, 1))
sketch3.addConstraint(Sketcher.Constraint("Symmetric", 12, 3, 37, 3, -1, 1))
sketch3.addConstraint(Sketcher.Constraint("Symmetric", 0, 3, 38, 3, -1, 1))
sketch3.addConstraint(Sketcher.Constraint("Symmetric", 5, 3, 39, 3, -1, 1))
sketch3.addConstraint(Sketcher.Constraint("Symmetric", 15, 3, 40, 3, -1, 1))
sketch3.addConstraint(Sketcher.Constraint("Symmetric", 7, 3, 41, 3, -1, 1))
sketch3.addConstraint(Sketcher.Constraint("Symmetric", 4, 3, 42, 3, -1, 1))
sketch3.addConstraint(Sketcher.Constraint("Symmetric", 16, 3, 43, 3, -1, 1))
sketch3.addConstraint(Sketcher.Constraint("Symmetric", 14, 3, 44, 3, -1, 1))
sketch3.addConstraint(Sketcher.Constraint("Symmetric", 18, 3, 45, 3, -1, 1))
sketch3.addConstraint(Sketcher.Constraint("Symmetric", 10, 3, 12, 3, -2))
sketch3.addConstraint(Sketcher.Constraint("Symmetric", 9, 3, 13, 3, -2))
sketch3.addConstraint(Sketcher.Constraint("Symmetric", 8, 3, 14, 3, -2))
sketch3.addConstraint(Sketcher.Constraint("Symmetric", 7, 3, 15, 3, -2))
sketch3.addConstraint(Sketcher.Constraint("Symmetric", 6, 3, 16, 3, -2))
sketch3.addConstraint(Sketcher.Constraint("Symmetric", 5, 3, 17, 3, -2))
sketch3.addConstraint(Sketcher.Constraint("Symmetric", 4, 3, 18, 3, -2))
sketch3.addConstraint(Sketcher.Constraint("Symmetric", 3, 3, 19, 3, -2))
sketch3.addConstraint(Sketcher.Constraint("Symmetric", 2, 3, 20, 3, -2))
sketch3.addConstraint(Sketcher.Constraint("Symmetric", 1, 3, 21, 3, -2))
sketch3.addConstraint(Sketcher.Constraint("Symmetric", 0, 3, 22, 3, -2))
sketch3.addConstraint(Sketcher.Constraint("Symmetric", 46, 3, 57, 3, -2))
sketch3.addConstraint(Sketcher.Constraint("Symmetric", 47, 3, 58, 3, -2))
sketch3.addConstraint(Sketcher.Constraint("Symmetric", 54, 3, 59, 3, -2))
sketch3.addConstraint(Sketcher.Constraint("Symmetric", 56, 3, 60, 3, -2))
sketch3.addConstraint(Sketcher.Constraint("Symmetric", 49, 3, 61, 3, -2))
sketch3.addConstraint(Sketcher.Constraint("Symmetric", 53, 3, 62, 3, -2))
sketch3.addConstraint(Sketcher.Constraint("Symmetric", 55, 3, 63, 3, -2))
sketch3.addConstraint(Sketcher.Constraint("Symmetric", 52, 3, 64, 3, -2))
sketch3.addConstraint(Sketcher.Constraint("Symmetric", 51, 3, 65, 3, -2))
sketch3.addConstraint(Sketcher.Constraint("Symmetric", 50, 3, 66, 3, -2))
sketch3.addConstraint(Sketcher.Constraint("Symmetric", 48, 3, 67, 3, -2))
sketch3.addConstraint(Sketcher.Constraint("PointOnObject", 11, 3, -2))
sketch3.addConstraint(Sketcher.Constraint("Horizontal", 0, 3, 1, 3))
sketch3.addConstraint(Sketcher.Constraint("Horizontal", 1, 3, 2, 3))
sketch3.addConstraint(Sketcher.Constraint("Horizontal", 2, 3, 3, 3))
sketch3.addConstraint(Sketcher.Constraint("Horizontal", 3, 3, 4, 3))
sketch3.addConstraint(Sketcher.Constraint("Horizontal", 4, 3, 5, 3))
sketch3.addConstraint(Sketcher.Constraint("Horizontal", 5, 3, 6, 3))
sketch3.addConstraint(Sketcher.Constraint("Horizontal", 6, 3, 7, 3))
sketch3.addConstraint(Sketcher.Constraint("Horizontal", 7, 3, 8, 3))
sketch3.addConstraint(Sketcher.Constraint("Horizontal", 8, 3, 9, 3))
sketch3.addConstraint(Sketcher.Constraint("Horizontal", 9, 3, 10, 3))
sketch3.addConstraint(Sketcher.Constraint("Horizontal", 10, 3, 11, 3))
sketch3.addConstraint(Sketcher.Constraint("Vertical", 46, 3, 47, 3))
sketch3.addConstraint(Sketcher.Constraint("Vertical", 47, 3, 48, 3))
sketch3.addConstraint(Sketcher.Constraint("Vertical", 48, 3, 49, 3))
sketch3.addConstraint(Sketcher.Constraint("Vertical", 49, 3, 50, 3))
sketch3.addConstraint(Sketcher.Constraint("Vertical", 50, 3, 51, 3))
sketch3.addConstraint(Sketcher.Constraint("Vertical", 51, 3, 52, 3))
sketch3.addConstraint(Sketcher.Constraint("Vertical", 52, 3, 53, 3))
sketch3.addConstraint(Sketcher.Constraint("Vertical", 53, 3, 54, 3))
sketch3.addConstraint(Sketcher.Constraint("Vertical", 54, 3, 55, 3))
sketch3.addConstraint(Sketcher.Constraint("Vertical", 55, 3, 56, 3))
sketch3.addConstraint(Sketcher.Constraint("Diameter", 0, Q("15 mm")))
sketch3.addConstraint(Sketcher.Constraint("DistanceX", 0, 3, -1, 1, Q("550 mm")))
sketch3.addConstraint(Sketcher.Constraint("DistanceY", 0, 3, -1, 1, Q("315 mm")))
sketch3.addConstraint(Sketcher.Constraint("DistanceX", 1, 3, -1, 1, Q("500 mm")))
sketch3.addConstraint(Sketcher.Constraint("DistanceX", 2, 3, -1, 1, Q("450 mm")))
sketch3.addConstraint(Sketcher.Constraint("DistanceX", 3, 3, -1, 1, Q("400 mm")))
sketch3.addConstraint(Sketcher.Constraint("DistanceX", 4, 3, -1, 1, Q("350 mm")))
sketch3.addConstraint(Sketcher.Constraint("DistanceX", 5, 3, -1, 1, Q("300 mm")))
sketch3.addConstraint(Sketcher.Constraint("DistanceX", 6, 3, -1, 1, Q("250 mm")))
sketch3.addConstraint(Sketcher.Constraint("DistanceX", 7, 3, -1, 1, Q("200 mm")))
sketch3.addConstraint(Sketcher.Constraint("DistanceX", 8, 3, -1, 1, Q("150 mm")))
sketch3.addConstraint(Sketcher.Constraint("DistanceX", 9, 3, -1, 1, Q("100 mm")))
sketch3.addConstraint(Sketcher.Constraint("DistanceX", 10, 3, -1, 1, Q("50 mm")))
sketch3.addConstraint(Sketcher.Constraint("DistanceX", 46, 3, -1, 1, Q("610 mm")))
sketch3.addConstraint(Sketcher.Constraint("DistanceY", 46, 3, -1, 1, Q("263.75 mm")))
sketch3.addConstraint(Sketcher.Constraint("DistanceY", 47, 3, -1, 1, Q("213.75 mm")))
sketch3.addConstraint(Sketcher.Constraint("DistanceY", 48, 3, -1, 1, Q("163.75 mm")))
sketch3.addConstraint(Sketcher.Constraint("DistanceY", 49, 3, -1, 1, Q("113.75 mm")))
sketch3.addConstraint(Sketcher.Constraint("DistanceY", 50, 3, -1, 1, Q("63.75 mm")))
sketch3.addConstraint(Sketcher.Constraint("DistanceY", 51, 3, -1, 1, Q("13.75 mm")))
sketch3.addConstraint(Sketcher.Constraint("DistanceY", -1, 1, 52, 3, Q("36.25 mm")))
sketch3.addConstraint(Sketcher.Constraint("DistanceY", -1, 1, 53, 3, Q("86.25 mm")))
sketch3.addConstraint(Sketcher.Constraint("DistanceY", -1, 1, 54, 3, Q("136.25 mm")))
sketch3.addConstraint(Sketcher.Constraint("DistanceY", -1, 1, 55, 3, Q("186.25 mm")))
sketch3.addConstraint(Sketcher.Constraint("DistanceY", -1, 1, 56, 3, Q("236.25 mm")))
sketch3.setExpression("Constraints[134]", "Params.sketch3_diameter")
pad3 = body.newObject("PartDesign::Pad", "Pad002")
pad3.Profile = sketch3
pad3.setExpression("Length", "Params.pad3_length")

sketch4 = body.newObject("Sketcher::SketchObject", "Sketch003")
sketch4.AttachmentSupport = (doc.getObject("XY_Plane"), [""])
sketch4.MapMode = "FlatFace"
sketch4.AttachmentOffset = App.Placement(App.Vector(0, 0, 640), App.Rotation())
add_polygon(sketch4, [(-620, 328), (-620, -328), (620, -328), (620, 328)])
add_polygon(sketch4, [(600, -300), (-600, -300), (-600, 300), (600, 300)])
sketch4.addConstraint(Sketcher.Constraint("Vertical", 0))
sketch4.addConstraint(Sketcher.Constraint("Horizontal", 1))
sketch4.addConstraint(Sketcher.Constraint("Vertical", 2))
sketch4.addConstraint(Sketcher.Constraint("Horizontal", 3))
sketch4.addConstraint(Sketcher.Constraint("Horizontal", 4))
sketch4.addConstraint(Sketcher.Constraint("Vertical", 5))
sketch4.addConstraint(Sketcher.Constraint("Horizontal", 6))
sketch4.addConstraint(Sketcher.Constraint("Vertical", 7))
sketch4.addConstraint(Sketcher.Constraint("Symmetric", 0, 2, 2, 2, -1, 1))
sketch4.addConstraint(Sketcher.Constraint("Symmetric", 4, 2, 6, 2, -1, 1))
sketch4.addConstraint(Sketcher.Constraint("DistanceX", 1, 1, 1, 2, Q("1240 mm")))
sketch4.addConstraint(Sketcher.Constraint("DistanceX", 4, 2, 4, 1, Q("1200 mm")))
sketch4.addConstraint(Sketcher.Constraint("DistanceY", 0, 2, 0, 1, Q("655 mm")))
sketch4.addConstraint(Sketcher.Constraint("DistanceY", 5, 1, 5, 2, Q("600 mm")))
sketch4.setExpression("Constraints[18]", "Params.sketch4_width")
sketch4.setExpression("Constraints[19]", "Params.sketch4_width2")
sketch4.setExpression("Constraints[20]", "Params.sketch4_height")
sketch4.setExpression("Constraints[21]", "Params.sketch4_height2")
pad4 = body.newObject("PartDesign::Pad", "Pad003")
pad4.Profile = sketch4
pad4.setExpression("Length", "Params.pad4_length")

doc.recompute()
